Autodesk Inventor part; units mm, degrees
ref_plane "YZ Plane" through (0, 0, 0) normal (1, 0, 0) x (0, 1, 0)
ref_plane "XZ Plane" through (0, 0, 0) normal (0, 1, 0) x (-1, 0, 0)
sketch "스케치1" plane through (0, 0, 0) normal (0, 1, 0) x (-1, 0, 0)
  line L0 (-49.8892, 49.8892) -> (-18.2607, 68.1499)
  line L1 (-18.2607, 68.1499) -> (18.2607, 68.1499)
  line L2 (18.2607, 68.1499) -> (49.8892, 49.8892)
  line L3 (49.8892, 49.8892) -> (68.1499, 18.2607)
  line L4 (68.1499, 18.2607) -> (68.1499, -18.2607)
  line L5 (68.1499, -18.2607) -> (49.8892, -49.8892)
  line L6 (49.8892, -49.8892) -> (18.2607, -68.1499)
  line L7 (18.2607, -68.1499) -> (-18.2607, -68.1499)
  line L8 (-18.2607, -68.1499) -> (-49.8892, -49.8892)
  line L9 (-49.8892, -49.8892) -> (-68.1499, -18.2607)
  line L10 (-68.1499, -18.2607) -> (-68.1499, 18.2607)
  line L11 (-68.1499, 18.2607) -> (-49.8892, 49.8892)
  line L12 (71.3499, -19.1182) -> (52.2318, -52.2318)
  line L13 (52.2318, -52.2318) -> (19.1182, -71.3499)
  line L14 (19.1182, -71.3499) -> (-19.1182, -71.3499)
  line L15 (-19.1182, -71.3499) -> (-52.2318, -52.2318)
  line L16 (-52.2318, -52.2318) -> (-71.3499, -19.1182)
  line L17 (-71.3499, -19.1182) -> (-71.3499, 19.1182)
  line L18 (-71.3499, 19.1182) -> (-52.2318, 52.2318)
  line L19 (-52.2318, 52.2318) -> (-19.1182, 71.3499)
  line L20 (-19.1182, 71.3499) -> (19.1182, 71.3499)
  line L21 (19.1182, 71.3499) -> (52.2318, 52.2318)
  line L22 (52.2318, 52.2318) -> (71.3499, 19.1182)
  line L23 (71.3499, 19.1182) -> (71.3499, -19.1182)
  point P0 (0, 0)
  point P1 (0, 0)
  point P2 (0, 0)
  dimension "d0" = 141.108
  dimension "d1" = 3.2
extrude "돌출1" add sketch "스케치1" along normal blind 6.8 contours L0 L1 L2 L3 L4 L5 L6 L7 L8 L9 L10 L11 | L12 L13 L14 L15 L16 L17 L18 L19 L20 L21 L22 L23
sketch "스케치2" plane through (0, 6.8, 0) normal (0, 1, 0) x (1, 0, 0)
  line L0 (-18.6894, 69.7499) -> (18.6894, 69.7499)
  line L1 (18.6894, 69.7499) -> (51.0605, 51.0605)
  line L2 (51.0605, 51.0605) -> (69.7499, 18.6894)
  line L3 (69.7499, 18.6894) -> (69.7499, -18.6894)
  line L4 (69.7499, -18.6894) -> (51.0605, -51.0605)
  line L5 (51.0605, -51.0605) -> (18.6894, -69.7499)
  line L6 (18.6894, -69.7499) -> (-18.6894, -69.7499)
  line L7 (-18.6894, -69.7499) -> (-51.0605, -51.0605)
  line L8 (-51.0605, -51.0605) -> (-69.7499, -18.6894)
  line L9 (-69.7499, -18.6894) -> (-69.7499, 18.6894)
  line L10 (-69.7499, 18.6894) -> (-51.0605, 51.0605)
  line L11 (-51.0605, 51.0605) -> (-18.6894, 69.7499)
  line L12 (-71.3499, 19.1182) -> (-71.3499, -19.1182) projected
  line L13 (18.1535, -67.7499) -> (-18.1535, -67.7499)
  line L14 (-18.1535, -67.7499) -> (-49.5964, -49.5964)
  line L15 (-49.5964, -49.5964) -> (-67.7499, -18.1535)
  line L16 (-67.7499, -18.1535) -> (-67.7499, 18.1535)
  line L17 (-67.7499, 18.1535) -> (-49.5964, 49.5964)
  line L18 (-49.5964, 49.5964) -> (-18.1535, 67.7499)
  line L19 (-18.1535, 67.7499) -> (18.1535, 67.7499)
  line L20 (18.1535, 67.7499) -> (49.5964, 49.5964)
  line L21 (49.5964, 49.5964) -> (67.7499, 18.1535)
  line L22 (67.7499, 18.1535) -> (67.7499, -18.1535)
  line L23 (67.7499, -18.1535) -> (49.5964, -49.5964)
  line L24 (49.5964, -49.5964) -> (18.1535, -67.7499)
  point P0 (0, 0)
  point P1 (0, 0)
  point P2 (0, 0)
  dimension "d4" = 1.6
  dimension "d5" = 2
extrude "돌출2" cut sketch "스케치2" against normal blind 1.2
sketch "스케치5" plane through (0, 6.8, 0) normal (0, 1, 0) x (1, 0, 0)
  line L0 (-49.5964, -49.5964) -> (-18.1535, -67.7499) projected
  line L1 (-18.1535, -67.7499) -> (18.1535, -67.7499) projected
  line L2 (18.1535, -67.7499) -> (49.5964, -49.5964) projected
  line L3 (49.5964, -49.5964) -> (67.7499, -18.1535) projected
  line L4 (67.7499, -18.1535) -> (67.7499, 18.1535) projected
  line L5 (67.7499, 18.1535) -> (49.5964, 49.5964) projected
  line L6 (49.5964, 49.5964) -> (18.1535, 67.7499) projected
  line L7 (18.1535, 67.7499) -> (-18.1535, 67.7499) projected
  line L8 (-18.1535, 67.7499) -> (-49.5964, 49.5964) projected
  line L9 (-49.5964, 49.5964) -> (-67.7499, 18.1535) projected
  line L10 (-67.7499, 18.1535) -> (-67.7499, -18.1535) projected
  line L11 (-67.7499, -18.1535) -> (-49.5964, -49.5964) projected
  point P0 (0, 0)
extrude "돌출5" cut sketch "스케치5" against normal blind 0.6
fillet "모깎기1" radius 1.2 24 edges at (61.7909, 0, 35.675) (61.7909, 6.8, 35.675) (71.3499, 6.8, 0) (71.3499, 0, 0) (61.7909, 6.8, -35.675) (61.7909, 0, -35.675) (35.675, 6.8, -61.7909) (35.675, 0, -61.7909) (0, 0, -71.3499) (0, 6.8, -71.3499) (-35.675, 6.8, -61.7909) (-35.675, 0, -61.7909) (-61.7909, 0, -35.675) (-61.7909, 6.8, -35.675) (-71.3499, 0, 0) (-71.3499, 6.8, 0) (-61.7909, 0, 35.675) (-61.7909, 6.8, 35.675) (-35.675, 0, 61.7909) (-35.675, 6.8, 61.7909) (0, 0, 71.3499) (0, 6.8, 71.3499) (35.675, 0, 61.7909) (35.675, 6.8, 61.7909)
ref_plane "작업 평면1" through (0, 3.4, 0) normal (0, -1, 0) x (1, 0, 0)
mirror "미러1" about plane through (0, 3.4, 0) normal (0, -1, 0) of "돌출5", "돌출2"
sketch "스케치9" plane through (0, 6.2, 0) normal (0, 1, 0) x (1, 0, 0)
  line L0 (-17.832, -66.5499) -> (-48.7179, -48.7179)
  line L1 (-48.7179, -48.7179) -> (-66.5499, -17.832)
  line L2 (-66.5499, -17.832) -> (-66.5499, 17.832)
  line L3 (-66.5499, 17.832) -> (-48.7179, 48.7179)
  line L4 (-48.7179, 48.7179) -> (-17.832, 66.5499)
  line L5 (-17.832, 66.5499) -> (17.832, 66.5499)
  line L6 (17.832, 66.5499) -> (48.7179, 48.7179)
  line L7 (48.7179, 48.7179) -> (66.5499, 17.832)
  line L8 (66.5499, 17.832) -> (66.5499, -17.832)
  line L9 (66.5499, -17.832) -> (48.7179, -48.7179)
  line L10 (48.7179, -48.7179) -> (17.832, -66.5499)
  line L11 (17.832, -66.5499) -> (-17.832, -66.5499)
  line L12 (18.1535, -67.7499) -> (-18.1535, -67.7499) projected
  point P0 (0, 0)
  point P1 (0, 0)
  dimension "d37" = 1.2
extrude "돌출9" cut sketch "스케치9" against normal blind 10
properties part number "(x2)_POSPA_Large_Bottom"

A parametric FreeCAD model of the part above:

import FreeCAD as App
import Part
import Sketcher

V = App.Vector
Q = App.Units.Quantity


def edges_at(feature, points):
    """Names of the edges that pass closest to the given points."""
    edges = feature.Shape.Edges
    near = lambda p: min(range(len(edges)), key=lambda i: edges[i].distToShape(Part.Vertex(*p))[0])
    return sorted({f"Edge{near(p) + 1}" for p in points})

doc = App.newDocument("Part")
body = doc.addObject("PartDesign::Body", "Body")

# Sketch on XZ plane
sketch1 = body.newObject("Sketcher::SketchObject", "Sketch")
sketch1.AttachmentSupport = (doc.getObject("XZ_Plane"), [""])
sketch1.MapMode = "FlatFace"
sketch1.addGeometry([
    Part.LineSegment(V(-52, -52, 0), V(-71, -19, 0)),  # 0
    Part.LineSegment(V(-71, -19, 0), V(-71, 19, 0)),  # 1
    Part.LineSegment(V(-71, 19, 0), V(-52, 52, 0)),  # 2
    Part.LineSegment(V(-52, 52, 0), V(-19, 71, 0)),  # 3
    Part.LineSegment(V(-19, 71, 0), V(19, 71, 0)),  # 4
    Part.LineSegment(V(19, 71, 0), V(52, 52, 0)),  # 5
    Part.LineSegment(V(52, 52, 0), V(71, 19, 0)),  # 6
    Part.LineSegment(V(71, 19, 0), V(71, -19, 0)),  # 7
    Part.LineSegment(V(71, -19, 0), V(52, -52, 0)),  # 8
    Part.LineSegment(V(52, -52, 0), V(19, -71, 0)),  # 9
    Part.LineSegment(V(19, -71, 0), V(-19, -71, 0)),  # 10
    Part.LineSegment(V(-19, -71, 0), V(-52, -52, 0)),  # 11
], False)
sketch1.addConstraint([
    Sketcher.Constraint("Coincident", 0, 2, 1, 1),
    Sketcher.Constraint("Coincident", 1, 2, 2, 1),
    Sketcher.Constraint("Coincident", 2, 2, 3, 1),
    Sketcher.Constraint("Coincident", 3, 2, 4, 1),
    Sketcher.Constraint("Coincident", 4, 2, 5, 1),
    Sketcher.Constraint("Coincident", 5, 2, 6, 1),
    Sketcher.Constraint("Coincident", 6, 2, 7, 1),
    Sketcher.Constraint("Coincident", 7, 2, 8, 1),
    Sketcher.Constraint("Coincident", 8, 2, 9, 1),
    Sketcher.Constraint("Coincident", 9, 2, 10, 1),
    Sketcher.Constraint("Coincident", 10, 2, 11, 1),
    Sketcher.Constraint("Coincident", 11, 2, 0, 1),
    Sketcher.Constraint("Vertical", 1),
    Sketcher.Constraint("Horizontal", 4),
    Sketcher.Constraint("Vertical", 7),
    Sketcher.Constraint("Horizontal", 10),
    Sketcher.Constraint("Symmetric", 0, 2, 6, 2, -1, 1),
    Sketcher.Constraint("Symmetric", 2, 2, 8, 2, -1, 1),
    Sketcher.Constraint("Symmetric", 3, 2, 9, 2, -1, 1),
    Sketcher.Constraint("Symmetric", 5, 2, 11, 2, -1, 1),
    Sketcher.Constraint("Symmetric", 2, 2, 5, 2, -2),
    Sketcher.Constraint("Perpendicular", 0, 3),
    Sketcher.Constraint("Perpendicular", 2, 5),
    Sketcher.Constraint("Perpendicular", 5, 8),
    Sketcher.Constraint("Perpendicular", 8, 11),
    Sketcher.Constraint("Horizontal", 1, 2, 6, 2),
    Sketcher.Constraint("Equal", 10, 1),
    Sketcher.Constraint("Equal", 2, 3),
    Sketcher.Constraint("Angle", 0, Q("120 deg")),
    Sketcher.Constraint("DistanceX", 0, 2, -1, 1, Q("71.35 mm")),
    Sketcher.Constraint("DistanceY", 0, 2, 2, 2, Q("71.35 mm")),
])
pad1 = body.newObject("PartDesign::Pad", "Pad")
pad1.Profile = sketch1
pad1.Length = 6.8
pad1.Reversed = True

# Sketch on XZ plane
sketch2 = body.newObject("Sketcher::SketchObject", "Sketch001")
sketch2.AttachmentSupport = (doc.getObject("XZ_Plane"), [""])
sketch2.MapMode = "FlatFace"
sketch2.AttachmentOffset = App.Placement(V(0, 0, -6.8), App.Rotation())
sketch2.addGeometry([
    Part.LineSegment(V(19, -70, 0), V(-19, -70, 0)),  # 0
    Part.LineSegment(V(-19, -70, 0), V(-51, -51, 0)),  # 1
    Part.LineSegment(V(-51, -51, 0), V(-70, -19, 0)),  # 2
    Part.LineSegment(V(-70, -19, 0), V(-70, 19, 0)),  # 3
    Part.LineSegment(V(-70, 19, 0), V(-51, 51, 0)),  # 4
    Part.LineSegment(V(-51, 51, 0), V(-19, 70, 0)),  # 5
    Part.LineSegment(V(-19, 70, 0), V(19, 70, 0)),  # 6
    Part.LineSegment(V(19, 70, 0), V(51, 51, 0)),  # 7
    Part.LineSegment(V(51, 51, 0), V(70, 19, 0)),  # 8
    Part.LineSegment(V(70, 19, 0), V(70, -19, 0)),  # 9
    Part.LineSegment(V(70, -19, 0), V(51, -51, 0)),  # 10
    Part.LineSegment(V(51, -51, 0), V(19, -70, 0)),  # 11
    Part.LineSegment(V(50, 50, 0), V(18, 68, 0)),  # 12
    Part.LineSegment(V(18, 68, 0), V(-18, 68, 0)),  # 13
    Part.LineSegment(V(-18, 68, 0), V(-50, 50, 0)),  # 14
    Part.LineSegment(V(-50, 50, 0), V(-68, 18, 0)),  # 15
    Part.LineSegment(V(-68, 18, 0), V(-68, -18, 0)),  # 16
    Part.LineSegment(V(-68, -18, 0), V(-50, -50, 0)),  # 17
    Part.LineSegment(V(-50, -50, 0), V(-18, -68, 0)),  # 18
    Part.LineSegment(V(-18, -68, 0), V(18, -68, 0)),  # 19
    Part.LineSegment(V(18, -68, 0), V(50, -50, 0)),  # 20
    Part.LineSegment(V(50, -50, 0), V(68, -18, 0)),  # 21
    Part.LineSegment(V(68, -18, 0), V(68, 18, 0)),  # 22
    Part.LineSegment(V(68, 18, 0), V(50, 50, 0)),  # 23
], False)
sketch2.addConstraint([
    Sketcher.Constraint("Coincident", 0, 2, 1, 1),
    Sketcher.Constraint("Coincident", 1, 2, 2, 1),
    Sketcher.Constraint("Coincident", 2, 2, 3, 1),
    Sketcher.Constraint("Coincident", 3, 2, 4, 1),
    Sketcher.Constraint("Coincident", 4, 2, 5, 1),
    Sketcher.Constraint("Coincident", 5, 2, 6, 1),
    Sketcher.Constraint("Coincident", 6, 2, 7, 1),
    Sketcher.Constraint("Coincident", 7, 2, 8, 1),
    Sketcher.Constraint("Coincident", 8, 2, 9, 1),
    Sketcher.Constraint("Coincident", 9, 2, 10, 1),
    Sketcher.Constraint("Coincident", 10, 2, 11, 1),
    Sketcher.Constraint("Coincident", 11, 2, 0, 1),
    Sketcher.Constraint("Coincident", 12, 2, 13, 1),
    Sketcher.Constraint("Coincident", 13, 2, 14, 1),
    Sketcher.Constraint("Coincident", 14, 2, 15, 1),
    Sketcher.Constraint("Coincident", 15, 2, 16, 1),
    Sketcher.Constraint("Coincident", 16, 2, 17, 1),
    Sketcher.Constraint("Coincident", 17, 2, 18, 1),
    Sketcher.Constraint("Coincident", 18, 2, 19, 1),
    Sketcher.Constraint("Coincident", 19, 2, 20, 1),
    Sketcher.Constraint("Coincident", 20, 2, 21, 1),
    Sketcher.Constraint("Coincident", 21, 2, 22, 1),
    Sketcher.Constraint("Coincident", 22, 2, 23, 1),
    Sketcher.Constraint("Coincident", 23, 2, 12, 1),
    Sketcher.Constraint("Horizontal", 0),
    Sketcher.Constraint("Vertical", 3),
    Sketcher.Constraint("Horizontal", 6),
    Sketcher.Constraint("Vertical", 9),
    Sketcher.Constraint("Horizontal", 13),
    Sketcher.Constraint("Vertical", 16),
    Sketcher.Constraint("Horizontal", 19),
    Sketcher.Constraint("Vertical", 22),
    Sketcher.Constraint("Symmetric", 0, 2, 6, 2, -1, 1),
    Sketcher.Constraint("Symmetric", 1, 2, 7, 2, -1, 1),
    Sketcher.Constraint("Symmetric", 2, 2, 8, 2, -1, 1),
    Sketcher.Constraint("Symmetric", 4, 2, 10, 2, -1, 1),
    Sketcher.Constraint("Symmetric", 12, 2, 18, 2, -1, 1),
    Sketcher.Constraint("Symmetric", 14, 2, 20, 2, -1, 1),
    Sketcher.Constraint("Symmetric", 15, 2, 21, 2, -1, 1),
    Sketcher.Constraint("Symmetric", 17, 2, 23, 2, -1, 1),
    Sketcher.Constraint("Symmetric", 4, 2, 7, 2, -2),
    Sketcher.Constraint("Symmetric", 17, 2, 20, 2, -2),
    Sketcher.Constraint("Perpendicular", 1, 4),
    Sketcher.Constraint("Perpendicular", 2, 5),
    Sketcher.Constraint("Perpendicular", 7, 10),
    Sketcher.Constraint("Perpendicular", 8, 11),
    Sketcher.Constraint("Perpendicular", 10, 12),
    Sketcher.Constraint("Parallel", 11, 14),
    Sketcher.Constraint("Perpendicular", 12, 15),
    Sketcher.Constraint("Perpendicular", 14, 17),
    Sketcher.Constraint("Perpendicular", 17, 20),
    Sketcher.Constraint("Perpendicular", 20, 23),
    Sketcher.Constraint("Horizontal", 3, 2, 8, 2),
    Sketcher.Constraint("Equal", 6, 3),
    Sketcher.Constraint("Equal", 19, 16),
    Sketcher.Constraint("Equal", 1, 2),
    Sketcher.Constraint("Equal", 14, 15),
    Sketcher.Constraint("DistanceY", 12, 2, 6, 2, Q("2 mm")),
    Sketcher.Constraint("Angle", 1, Q("150 deg")),
    Sketcher.Constraint("DistanceX", 13, 2, 13, 1, Q("36.307 mm")),
    Sketcher.Constraint("DistanceY", 0, 2, -1, 1, Q("69.75 mm")),
    Sketcher.Constraint("DistanceY", 1, 2, 3, 2, Q("69.75 mm")),
])
pocket1 = body.newObject("PartDesign::Pocket", "Pocket")
pocket1.Profile = sketch2
pocket1.Length = 1.2
pocket1.Reversed = True

# Sketch on XZ plane
sketch3 = body.newObject("Sketcher::SketchObject", "Sketch002")
sketch3.AttachmentSupport = (doc.getObject("XZ_Plane"), [""])
sketch3.MapMode = "FlatFace"
sketch3.AttachmentOffset = App.Placement(V(0, 0, -6.8), App.Rotation())
sketch3.addGeometry([
    Part.LineSegment(V(-68, 18, 0), V(-50, 50, 0)),  # 0
    Part.LineSegment(V(-50, 50, 0), V(-18, 68, 0)),  # 1
    Part.LineSegment(V(-18, 68, 0), V(18, 68, 0)),  # 2
    Part.LineSegment(V(18, 68, 0), V(50, 50, 0)),  # 3
    Part.LineSegment(V(50, 50, 0), V(68, 18, 0)),  # 4
    Part.LineSegment(V(68, 18, 0), V(68, -18, 0)),  # 5
    Part.LineSegment(V(68, -18, 0), V(50, -50, 0)),  # 6
    Part.LineSegment(V(50, -50, 0), V(18, -68, 0)),  # 7
    Part.LineSegment(V(18, -68, 0), V(-18, -68, 0)),  # 8
    Part.LineSegment(V(-18, -68, 0), V(-50, -50, 0)),  # 9
    Part.LineSegment(V(-50, -50, 0), V(-68, -18, 0)),  # 10
    Part.LineSegment(V(-68, -18, 0), V(-68, 18, 0)),  # 11
], False)
sketch3.addConstraint([
    Sketcher.Constraint("Coincident", 0, 2, 1, 1),
    Sketcher.Constraint("Coincident", 1, 2, 2, 1),
    Sketcher.Constraint("Coincident", 2, 2, 3, 1),
    Sketcher.Constraint("Coincident", 3, 2, 4, 1),
    Sketcher.Constraint("Coincident", 4, 2, 5, 1),
    Sketcher.Constraint("Coincident", 5, 2, 6, 1),
    Sketcher.Constraint("Coincident", 6, 2, 7, 1),
    Sketcher.Constraint("Coincident", 7, 2, 8, 1),
    Sketcher.Constraint("Coincident", 8, 2, 9, 1),
    Sketcher.Constraint("Coincident", 9, 2, 10, 1),
    Sketcher.Constraint("Coincident", 10, 2, 11, 1),
    Sketcher.Constraint("Coincident", 11, 2, 0, 1),
    Sketcher.Constraint("Horizontal", 2),
    Sketcher.Constraint("Vertical", 5),
    Sketcher.Constraint("Horizontal", 8),
    Sketcher.Constraint("Vertical", 11),
    Sketcher.Constraint("Symmetric", 0, 2, 6, 2, -1, 1),
    Sketcher.Constraint("Symmetric", 1, 2, 7, 2, -1, 1),
    Sketcher.Constraint("Symmetric", 3, 2, 9, 2, -1, 1),
    Sketcher.Constraint("Symmetric", 4, 2, 10, 2, -1, 1),
    Sketcher.Constraint("Symmetric", 0, 2, 3, 2, -2),
    Sketcher.Constraint("Perpendicular", 0, 3),
    Sketcher.Constraint("Perpendicular", 1, 4),
    Sketcher.Constraint("Perpendicular", 3, 6),
    Sketcher.Constraint("Perpendicular", 6, 9),
    Sketcher.Constraint("Horizontal", 5, 2, 10, 2),
    Sketcher.Constraint("Equal", 8, 5),
    Sketcher.Constraint("Equal", 0, 1),
    Sketcher.Constraint("Angle", 0, Q("60 deg")),
    Sketcher.Constraint("DistanceX", 2, 1, 2, 2, Q("36.307 mm")),
    Sketcher.Constraint("DistanceY", -1, 1, 1, 2, Q("67.75 mm")),
])
pocket2 = body.newObject("PartDesign::Pocket", "Pocket001")
pocket2.Profile = sketch3
pocket2.Length = 0.6
pocket2.Reversed = True
doc.recompute()

fillet = body.newObject("PartDesign::Fillet", "Fillet")
fillet.Base = (pocket2, edges_at(pocket2, [
    (61.791, 0, 35.675),
    (61.791, 6.8, 35.675),
    (71.35, 6.8, 0),
    (71.35, 0, 0),
    (61.791, 6.8, -35.675),
    (61.791, 0, -35.675),
    (35.675, 6.8, -61.791),
    (35.675, 0, -61.791),
    (0, 0, -71.35),
    (0, 6.8, -71.35),
    (-35.675, 6.8, -61.791),
    (-35.675, 0, -61.791),
    (-61.791, 0, -35.675),
    (-61.791, 6.8, -35.675),
    (-71.35, 0, 0),
    (-71.35, 6.8, 0),
    (-61.791, 0, 35.675),
    (-61.791, 6.8, 35.675),
    (-35.675, 0, 61.791),
    (-35.675, 6.8, 61.791),
    (0, 0, 71.35),
    (0, 6.8, 71.35),
    (35.675, 0, 61.791),
    (35.675, 6.8, 61.791),
]))
fillet.Radius = 1.2
doc.recompute()

datumplane = body.newObject("PartDesign::Plane", "DatumPlane")
datumplane.AttachmentSupport = (doc.getObject("XZ_Plane"), [""])
datumplane.MapMode = "FlatFace"
datumplane.AttachmentOffset = App.Placement(V(0, 0, -3.4), App.Rotation())
mirrored = body.newObject("PartDesign::Mirrored", "Mirrored")
mirrored.Originals = [pocket2, pocket1]
mirrored.MirrorPlane = (datumplane, [""])
body.Tip = mirrored

# Sketch on XZ plane
sketch4 = body.newObject("Sketcher::SketchObject", "Sketch003")
sketch4.AttachmentSupport = (doc.getObject("XZ_Plane"), [""])
sketch4.MapMode = "FlatFace"
sketch4.AttachmentOffset = App.Placement(V(0, 0, -6.2), App.Rotation())
sketch4.addGeometry([
    Part.LineSegment(V(-49, 49, 0), V(-18, 67, 0)),  # 0
    Part.LineSegment(V(-18, 67, 0), V(18, 67, 0)),  # 1
    Part.LineSegment(V(18, 67, 0), V(49, 49, 0)),  # 2
    Part.LineSegment(V(49, 49, 0), V(67, 18, 0)),  # 3
    Part.LineSegment(V(67, 18, 0), V(67, -18, 0)),  # 4
    Part.LineSegment(V(67, -18, 0), V(49, -49, 0)),  # 5
    Part.LineSegment(V(49, -49, 0), V(18, -67, 0)),  # 6
    Part.LineSegment(V(18, -67, 0), V(-18, -67, 0)),  # 7
    Part.LineSegment(V(-18, -67, 0), V(-49, -49, 0)),  # 8
    Part.LineSegment(V(-49, -49, 0), V(-67, -18, 0)),  # 9
    Part.LineSegment(V(-67, -18, 0), V(-67, 18, 0)),  # 10
    Part.LineSegment(V(-67, 18, 0), V(-49, 49, 0)),  # 11
], False)
sketch4.addConstraint([
    Sketcher.Constraint("Coincident", 0, 2, 1, 1),
    Sketcher.Constraint("Coincident", 1, 2, 2, 1),
    Sketcher.Constraint("Coincident", 2, 2, 3, 1),
    Sketcher.Constraint("Coincident", 3, 2, 4, 1),
    Sketcher.Constraint("Coincident", 4, 2, 5, 1),
    Sketcher.Constraint("Coincident", 5, 2, 6, 1),
    Sketcher.Constraint("Coincident", 6, 2, 7, 1),
    Sketcher.Constraint("Coincident", 7, 2, 8, 1),
    Sketcher.Constraint("Coincident", 8, 2, 9, 1),
    Sketcher.Constraint("Coincident", 9, 2, 10, 1),
    Sketcher.Constraint("Coincident", 10, 2, 11, 1),
    Sketcher.Constraint("Coincident", 11, 2, 0, 1),
    Sketcher.Constraint("Horizontal", 1),
    Sketcher.Constraint("Vertical", 4),
    Sketcher.Constraint("Horizontal", 7),
    Sketcher.Constraint("Vertical", 10),
    Sketcher.Constraint("Symmetric", 0, 2, 6, 2, -1, 1),
    Sketcher.Constraint("Symmetric", 2, 2, 8, 2, -1, 1),
    Sketcher.Constraint("Symmetric", 3, 2, 9, 2, -1, 1),
    Sketcher.Constraint("Symmetric", 5, 2, 11, 2, -1, 1),
    Sketcher.Constraint("Symmetric", 5, 2, 8, 2, -2),
    Sketcher.Constraint("Perpendicular", 0, 3),
    Sketcher.Constraint("Perpendicular", 2, 5),
    Sketcher.Constraint("Perpendicular", 5, 8),
    Sketcher.Constraint("Perpendicular", 8, 11),
    Sketcher.Constraint("Horizontal", 4, 2, 9, 2),
    Sketcher.Constraint("Equal", 7, 4),
    Sketcher.Constraint("Equal", 2, 3),
    Sketcher.Constraint("Angle", 0, Q("30 deg")),
    Sketcher.Constraint("DistanceX", 1, 1, 1, 2, Q("35.664 mm")),
    Sketcher.Constraint("DistanceY", -1, 1, 0, 2, Q("66.55 mm")),
])
pocket3 = body.newObject("PartDesign::Pocket", "Pocket002")
pocket3.Profile = sketch4
pocket3.Length = 10
pocket3.Reversed = True

doc.recompute()
